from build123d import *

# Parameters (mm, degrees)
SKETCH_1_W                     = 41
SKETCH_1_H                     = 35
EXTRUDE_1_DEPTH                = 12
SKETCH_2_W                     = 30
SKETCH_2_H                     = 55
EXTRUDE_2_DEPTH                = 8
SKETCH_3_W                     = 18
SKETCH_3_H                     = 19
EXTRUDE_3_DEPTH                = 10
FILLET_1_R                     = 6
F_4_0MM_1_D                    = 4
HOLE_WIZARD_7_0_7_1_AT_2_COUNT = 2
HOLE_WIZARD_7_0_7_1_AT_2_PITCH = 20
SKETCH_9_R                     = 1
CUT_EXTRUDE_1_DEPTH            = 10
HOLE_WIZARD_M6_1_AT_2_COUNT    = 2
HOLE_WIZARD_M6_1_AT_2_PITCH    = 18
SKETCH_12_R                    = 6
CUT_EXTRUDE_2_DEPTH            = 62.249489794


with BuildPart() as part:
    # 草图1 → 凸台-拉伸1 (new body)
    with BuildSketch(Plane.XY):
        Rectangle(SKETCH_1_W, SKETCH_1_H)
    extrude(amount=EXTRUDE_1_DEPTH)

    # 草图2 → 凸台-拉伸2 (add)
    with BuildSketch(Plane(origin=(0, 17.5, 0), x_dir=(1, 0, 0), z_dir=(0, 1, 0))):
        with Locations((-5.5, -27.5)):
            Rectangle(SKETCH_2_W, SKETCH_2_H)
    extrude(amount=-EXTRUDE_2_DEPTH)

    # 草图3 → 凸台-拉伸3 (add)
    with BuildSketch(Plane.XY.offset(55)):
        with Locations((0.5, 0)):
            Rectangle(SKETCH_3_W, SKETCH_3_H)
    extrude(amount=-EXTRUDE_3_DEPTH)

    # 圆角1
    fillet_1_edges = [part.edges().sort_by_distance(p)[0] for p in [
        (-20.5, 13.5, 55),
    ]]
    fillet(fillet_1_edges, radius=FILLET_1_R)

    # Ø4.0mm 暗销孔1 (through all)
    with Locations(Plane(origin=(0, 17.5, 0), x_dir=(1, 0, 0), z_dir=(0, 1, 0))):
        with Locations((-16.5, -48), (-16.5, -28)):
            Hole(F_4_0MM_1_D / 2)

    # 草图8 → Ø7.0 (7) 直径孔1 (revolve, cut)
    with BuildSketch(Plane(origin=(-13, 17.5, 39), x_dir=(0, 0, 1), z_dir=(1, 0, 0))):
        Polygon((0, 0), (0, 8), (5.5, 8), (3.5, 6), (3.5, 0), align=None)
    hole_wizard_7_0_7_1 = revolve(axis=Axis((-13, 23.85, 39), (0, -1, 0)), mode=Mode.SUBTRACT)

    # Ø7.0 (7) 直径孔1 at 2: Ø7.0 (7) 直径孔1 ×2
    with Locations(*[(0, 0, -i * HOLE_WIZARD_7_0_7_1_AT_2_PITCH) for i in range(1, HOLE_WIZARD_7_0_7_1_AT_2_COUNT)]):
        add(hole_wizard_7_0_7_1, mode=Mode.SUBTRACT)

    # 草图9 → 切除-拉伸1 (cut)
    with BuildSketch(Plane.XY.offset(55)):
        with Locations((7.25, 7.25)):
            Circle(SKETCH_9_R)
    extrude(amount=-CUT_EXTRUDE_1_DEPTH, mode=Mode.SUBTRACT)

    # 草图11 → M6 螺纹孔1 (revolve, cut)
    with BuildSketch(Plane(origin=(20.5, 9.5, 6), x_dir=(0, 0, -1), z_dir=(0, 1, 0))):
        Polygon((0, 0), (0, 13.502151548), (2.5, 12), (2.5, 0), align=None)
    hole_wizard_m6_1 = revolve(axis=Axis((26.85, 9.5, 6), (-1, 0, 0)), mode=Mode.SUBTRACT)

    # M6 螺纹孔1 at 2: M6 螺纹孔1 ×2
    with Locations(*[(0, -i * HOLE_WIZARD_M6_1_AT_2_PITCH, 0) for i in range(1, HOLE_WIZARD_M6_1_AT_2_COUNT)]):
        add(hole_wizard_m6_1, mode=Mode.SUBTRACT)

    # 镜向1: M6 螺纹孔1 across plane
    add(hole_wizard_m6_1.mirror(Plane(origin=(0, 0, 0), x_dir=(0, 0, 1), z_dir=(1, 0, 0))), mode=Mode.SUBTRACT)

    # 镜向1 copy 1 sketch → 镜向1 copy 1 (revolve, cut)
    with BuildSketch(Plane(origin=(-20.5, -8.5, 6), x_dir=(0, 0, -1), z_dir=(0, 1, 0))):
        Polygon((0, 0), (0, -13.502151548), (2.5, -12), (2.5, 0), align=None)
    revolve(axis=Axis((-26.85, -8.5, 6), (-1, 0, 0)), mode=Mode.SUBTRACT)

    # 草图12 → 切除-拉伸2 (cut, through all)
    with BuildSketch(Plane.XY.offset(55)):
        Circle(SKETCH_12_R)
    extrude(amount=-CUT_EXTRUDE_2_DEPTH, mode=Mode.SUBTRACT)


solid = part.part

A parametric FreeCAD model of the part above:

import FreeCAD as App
import Part
import Sketcher

V = App.Vector
Q = App.Units.Quantity


def edges_at(feature, points):
    """Names of the edges that pass closest to the given points."""
    edges = feature.Shape.Edges
    near = lambda p: min(range(len(edges)), key=lambda i: edges[i].distToShape(Part.Vertex(*p))[0])
    return sorted({f"Edge{near(p) + 1}" for p in points})


def add_polygon(sketch, points):
    """Adds a closed chain of lines whose ends are joined by coincident constraints."""
    first, n = sketch.GeometryCount, len(points)
    for a, b in zip(points, points[1:] + points[:1]):
        sketch.addGeometry(Part.LineSegment(App.Vector(*a, 0), App.Vector(*b, 0)), False)
    for i in range(n):
        sketch.addConstraint(Sketcher.Constraint("Coincident", first + i, 2, first + (i + 1) % n, 1))

doc = App.newDocument("Part")
body = doc.addObject("PartDesign::Body", "Body")

# Sketch on XY plane
sketch1 = doc.addObject("Sketcher::SketchObject", "Sketch")
body.addObject(sketch1)
sketch1.AttachmentSupport = (doc.XY_Plane, [""])
sketch1.MapMode = "FlatFace"
add_polygon(sketch1, [(-20, 18), (-20, -18), (20, -18), (20, 18)])  # lines 0-3
sketch1.addConstraint(Sketcher.Constraint("Vertical", 0))
sketch1.addConstraint(Sketcher.Constraint("Horizontal", 1))
sketch1.addConstraint(Sketcher.Constraint("Vertical", 2))
sketch1.addConstraint(Sketcher.Constraint("Horizontal", 3))
sketch1.addConstraint(Sketcher.Constraint("Symmetric", 0, 2, 2, 2, -1, 1))
sketch1.addConstraint(Sketcher.Constraint("DistanceX", 1, 1, 1, 2, Q("41 mm")))
sketch1.addConstraint(Sketcher.Constraint("DistanceY", 0, 2, 0, 1, Q("35 mm")))
pad1 = doc.addObject("PartDesign::Pad", "Pad")
body.addObject(pad1)
pad1.Profile = sketch1
pad1.Length = 12

# Sketch on XZ plane
sketch2 = doc.addObject("Sketcher::SketchObject", "Sketch001")
body.addObject(sketch2)
sketch2.AttachmentSupport = (doc.XZ_Plane, [""])
sketch2.MapMode = "FlatFace"
sketch2.AttachmentOffset = App.Placement(V(0, 0, -17.5), App.Rotation())
add_polygon(sketch2, [(-20, 0), (-20, 55), (10, 55), (10, 0)])  # lines 0-3
sketch2.addConstraint(Sketcher.Constraint("Vertical", 0))
sketch2.addConstraint(Sketcher.Constraint("Horizontal", 1))
sketch2.addConstraint(Sketcher.Constraint("Vertical", 2))
sketch2.addConstraint(Sketcher.Constraint("Horizontal", 3))
sketch2.addConstraint(Sketcher.Constraint("PointOnObject", 2, 2, -1))
sketch2.addConstraint(Sketcher.Constraint("DistanceX", 1, 1, 1, 2, Q("30 mm")))
sketch2.addConstraint(Sketcher.Constraint("DistanceY", 0, 1, 0, 2, Q("55 mm")))
sketch2.addConstraint(Sketcher.Constraint("DistanceX", 0, 2, -1, 1, Q("20.5 mm")))
pad2 = doc.addObject("PartDesign::Pad", "Pad001")
body.addObject(pad2)
pad2.Profile = sketch2
pad2.Length = 8

# Sketch on XY plane
sketch3 = doc.addObject("Sketcher::SketchObject", "Sketch002")
body.addObject(sketch3)
sketch3.AttachmentSupport = (doc.XY_Plane, [""])
sketch3.MapMode = "FlatFace"
sketch3.AttachmentOffset = App.Placement(V(0, 0, 55), App.Rotation())
add_polygon(sketch3, [(-8, 10), (-8, -10), (10, -10), (10, 10)])  # lines 0-3
sketch3.addConstraint(Sketcher.Constraint("Vertical", 0))
sketch3.addConstraint(Sketcher.Constraint("Horizontal", 1))
sketch3.addConstraint(Sketcher.Constraint("Vertical", 2))
sketch3.addConstraint(Sketcher.Constraint("Horizontal", 3))
sketch3.addConstraint(Sketcher.Constraint("DistanceX", 1, 1, 1, 2, Q("18 mm")))
sketch3.addConstraint(Sketcher.Constraint("DistanceY", 0, 2, 0, 1, Q("19 mm")))
sketch3.addConstraint(Sketcher.Constraint("DistanceX", 0, 2, -1, 1, Q("8.5 mm")))
sketch3.addConstraint(Sketcher.Constraint("DistanceY", 0, 2, -1, 1, Q("9.5 mm")))
pad3 = doc.addObject("PartDesign::Pad", "Pad002")
body.addObject(pad3)
pad3.Profile = sketch3
pad3.Length = 10
pad3.Reversed = True
doc.recompute()

fillet = doc.addObject("PartDesign::Fillet", "Fillet")
body.addObject(fillet)
fillet.Base = (pad3, edges_at(pad3, [(-20.5, 13.5, 55)]))
fillet.Radius = 6

# Sketch on XZ plane
sketch4 = doc.addObject("Sketcher::SketchObject", "Sketch003")
body.addObject(sketch4)
sketch4.AttachmentSupport = (doc.XZ_Plane, [""])
sketch4.MapMode = "FlatFace"
sketch4.AttachmentOffset = App.Placement(V(0, 0, -17.5), App.Rotation())
sketch4.addGeometry(Part.Circle(V(-16.5, 48, 0), V(0, 0, 1), 2), False)
sketch4.addGeometry(Part.Circle(V(-16.5, 28, 0), V(0, 0, 1), 2), False)
sketch4.addConstraint(Sketcher.Constraint("Equal", 0, 1))
sketch4.addConstraint(Sketcher.Constraint("Vertical", 0, 3, 1, 3))
sketch4.addConstraint(Sketcher.Constraint("Diameter", 0, Q("4 mm")))
sketch4.addConstraint(Sketcher.Constraint("DistanceY", -1, 1, 0, 3, Q("48 mm")))
sketch4.addConstraint(Sketcher.Constraint("DistanceY", -1, 1, 1, 3, Q("28 mm")))
sketch4.addConstraint(Sketcher.Constraint("DistanceX", 0, 3, -1, 1, Q("16.5 mm")))
doc.recompute()
hole = doc.addObject("PartDesign::Hole", "Hole")
body.addObject(hole)
hole.Profile = sketch4
hole.ThreadType = "None"
hole.Diameter = 4
hole.DepthType = "ThroughAll"
hole.Reversed = True

# Sketch on YZ plane
sketch5 = doc.addObject("Sketcher::SketchObject", "Sketch004")
body.addObject(sketch5)
sketch5.AttachmentSupport = (doc.YZ_Plane, [""])
sketch5.MapMode = "FlatFace"
sketch5.AttachmentOffset = App.Placement(V(0, 0, -13), App.Rotation())
add_polygon(sketch5, [(9.5, 39), (17.5, 39), (17.5, 42.5), (11.5, 42.5), (9.5, 44.5)])  # lines 0-4
sketch5.addGeometry(Part.LineSegment(V(17.5, 39, 0), V(9.5, 39, 0)), True)  # axis
sketch5.addConstraint(Sketcher.Constraint("Horizontal", 0))
sketch5.addConstraint(Sketcher.Constraint("Vertical", 1))
sketch5.addConstraint(Sketcher.Constraint("Horizontal", 2))
sketch5.addConstraint(Sketcher.Constraint("Vertical", 4))
sketch5.addConstraint(Sketcher.Constraint("Horizontal", 5))
sketch5.addConstraint(Sketcher.Constraint("Coincident", 5, 1, 0, 2))
sketch5.addConstraint(Sketcher.Constraint("Vertical", 3, 2, 5, 2))
sketch5.addConstraint(Sketcher.Constraint("DistanceX", 0, 1, 0, 2, Q("8 mm")))
sketch5.addConstraint(Sketcher.Constraint("DistanceX", 2, 2, 2, 1, Q("6 mm")))
sketch5.addConstraint(Sketcher.Constraint("Angle", 3, Q("135 deg")))
sketch5.addConstraint(Sketcher.Constraint("DistanceY", 1, 1, 1, 2, Q("3.5 mm")))
sketch5.addConstraint(Sketcher.Constraint("DistanceY", -1, 1, 0, 2, Q("39 mm")))
sketch5.addConstraint(Sketcher.Constraint("DistanceX", -1, 1, 0, 2, Q("17.5 mm")))
groove = doc.addObject("PartDesign::Groove", "Groove")
body.addObject(groove)
groove.Profile = sketch5
groove.ReferenceAxis = (sketch5, ["Axis0"])
groove.Angle = 360
doc.recompute()

linearpattern = doc.addObject("PartDesign::LinearPattern", "LinearPattern")
body.addObject(linearpattern)
linearpattern.Originals = [groove]
linearpattern.Direction = (doc.Z_Axis, [""])
linearpattern.Mode = "offset"
linearpattern.Offset = 20
linearpattern.Occurrences = 2
linearpattern.Reversed = True
body.Tip = linearpattern

# Sketch on XY plane
sketch6 = doc.addObject("Sketcher::SketchObject", "Sketch005")
body.addObject(sketch6)
sketch6.AttachmentSupport = (doc.XY_Plane, [""])
sketch6.MapMode = "FlatFace"
sketch6.AttachmentOffset = App.Placement(V(0, 0, 55), App.Rotation())
sketch6.addGeometry(Part.Circle(V(7.2, 7.2, 0), V(0, 0, 1), 1), False)
sketch6.addConstraint(Sketcher.Constraint("Diameter", 0, Q("2 mm")))
sketch6.addConstraint(Sketcher.Constraint("DistanceX", -1, 1, 0, 3, Q("7.25 mm")))
sketch6.addConstraint(Sketcher.Constraint("DistanceY", -1, 1, 0, 3, Q("7.25 mm")))
pocket1 = doc.addObject("PartDesign::Pocket", "Pocket")
body.addObject(pocket1)
pocket1.Profile = sketch6
pocket1.Length = 10

# Sketch on XZ plane
sketch7 = doc.addObject("Sketcher::SketchObject", "Sketch006")
body.addObject(sketch7)
sketch7.AttachmentSupport = (doc.XZ_Plane, [""])
sketch7.MapMode = "FlatFace"
sketch7.AttachmentOffset = App.Placement(V(0, 0, -9.5), App.Rotation())
add_polygon(sketch7, [(7, 6), (20.5, 6), (20.5, 3.5), (8.5, 3.5)])  # lines 0-3
sketch7.addGeometry(Part.LineSegment(V(20.5, 6, 0), V(7, 6, 0)), True)  # axis
sketch7.addConstraint(Sketcher.Constraint("Horizontal", 0))
sketch7.addConstraint(Sketcher.Constraint("Vertical", 1))
sketch7.addConstraint(Sketcher.Constraint("Horizontal", 2))
sketch7.addConstraint(Sketcher.Constraint("Horizontal", 4))
sketch7.addConstraint(Sketcher.Constraint("Coincident", 4, 1, 0, 2))
sketch7.addConstraint(Sketcher.Constraint("Equal", 0, 4))
sketch7.addConstraint(Sketcher.Constraint("DistanceX", 2, 2, 2, 1, Q("12 mm")))
sketch7.addConstraint(Sketcher.Constraint("Angle", 3, Q("121 deg")))
sketch7.addConstraint(Sketcher.Constraint("DistanceY", 1, 2, 1, 1, Q("2.5 mm")))
sketch7.addConstraint(Sketcher.Constraint("DistanceY", -1, 1, 0, 2, Q("6 mm")))
sketch7.addConstraint(Sketcher.Constraint("DistanceX", -1, 1, 0, 2, Q("20.5 mm")))
groove2 = doc.addObject("PartDesign::Groove", "Groove001")
body.addObject(groove2)
groove2.Profile = sketch7
groove2.ReferenceAxis = (sketch7, ["Axis0"])
groove2.Angle = 360
doc.recompute()

linearpattern2 = doc.addObject("PartDesign::LinearPattern", "LinearPattern001")
body.addObject(linearpattern2)
linearpattern2.Originals = [groove2]
linearpattern2.Direction = (doc.Y_Axis, [""])
linearpattern2.Mode = "offset"
linearpattern2.Offset = 18
linearpattern2.Occurrences = 2
linearpattern2.Reversed = True
body.Tip = linearpattern2
doc.recompute()

mirrored = doc.addObject("PartDesign::Mirrored", "Mirrored")
body.addObject(mirrored)
mirrored.Originals = [groove2]
mirrored.MirrorPlane = (doc.YZ_Plane, [""])
body.Tip = mirrored

# Sketch on XZ plane
sketch8 = doc.addObject("Sketcher::SketchObject", "Sketch007")
body.addObject(sketch8)
sketch8.AttachmentSupport = (doc.XZ_Plane, [""])
sketch8.MapMode = "FlatFace"
sketch8.AttachmentOffset = App.Placement(V(0, 0, 8.5), App.Rotation())
add_polygon(sketch8, [(-20.5, 6), (-7, 6), (-8.5, 3.5), (-20.5, 3.5)])  # lines 0-3
sketch8.addGeometry(Part.LineSegment(V(-7, 6, 0), V(-20.5, 6, 0)), True)  # axis
sketch8.addConstraint(Sketcher.Constraint("Horizontal", 0))
sketch8.addConstraint(Sketcher.Constraint("Horizontal", 2))
sketch8.addConstraint(Sketcher.Constraint("Vertical", 3))
sketch8.addConstraint(Sketcher.Constraint("Horizontal", 4))
sketch8.addConstraint(Sketcher.Constraint("Coincident", 4, 1, 0, 2))
sketch8.addConstraint(Sketcher.Constraint("Vertical", 2, 2, 4, 2))
sketch8.addConstraint(Sketcher.Constraint("DistanceX", 2, 2, 2, 1, Q("12 mm")))
sketch8.addConstraint(Sketcher.Constraint("Angle", 1, Q("-121 deg")))
sketch8.addConstraint(Sketcher.Constraint("DistanceY", 3, 1, 3, 2, Q("2.5 mm")))
sketch8.addConstraint(Sketcher.Constraint("DistanceY", -1, 1, 0, 2, Q("6 mm")))
sketch8.addConstraint(Sketcher.Constraint("DistanceX", 1, 2, -1, 1, Q("8.5 mm")))
groove3 = doc.addObject("PartDesign::Groove", "Groove002")
body.addObject(groove3)
groove3.Profile = sketch8
groove3.ReferenceAxis = (sketch8, ["Axis0"])
groove3.Angle = 360

# Sketch on XY plane
sketch9 = doc.addObject("Sketcher::SketchObject", "Sketch008")
body.addObject(sketch9)
sketch9.AttachmentSupport = (doc.XY_Plane, [""])
sketch9.MapMode = "FlatFace"
sketch9.AttachmentOffset = App.Placement(V(0, 0, 55), App.Rotation())
sketch9.addGeometry(Part.Circle(V(0, 0, 0), V(0, 0, 1), 6), False)
sketch9.addConstraint(Sketcher.Constraint("Coincident", 0, 3, -1, 1))
sketch9.addConstraint(Sketcher.Constraint("Diameter", 0, Q("12 mm")))
pocket2 = doc.addObject("PartDesign::Pocket", "Pocket001")
body.addObject(pocket2)
pocket2.Profile = sketch9
pocket2.Type = "ThroughAll"

doc.recompute()
